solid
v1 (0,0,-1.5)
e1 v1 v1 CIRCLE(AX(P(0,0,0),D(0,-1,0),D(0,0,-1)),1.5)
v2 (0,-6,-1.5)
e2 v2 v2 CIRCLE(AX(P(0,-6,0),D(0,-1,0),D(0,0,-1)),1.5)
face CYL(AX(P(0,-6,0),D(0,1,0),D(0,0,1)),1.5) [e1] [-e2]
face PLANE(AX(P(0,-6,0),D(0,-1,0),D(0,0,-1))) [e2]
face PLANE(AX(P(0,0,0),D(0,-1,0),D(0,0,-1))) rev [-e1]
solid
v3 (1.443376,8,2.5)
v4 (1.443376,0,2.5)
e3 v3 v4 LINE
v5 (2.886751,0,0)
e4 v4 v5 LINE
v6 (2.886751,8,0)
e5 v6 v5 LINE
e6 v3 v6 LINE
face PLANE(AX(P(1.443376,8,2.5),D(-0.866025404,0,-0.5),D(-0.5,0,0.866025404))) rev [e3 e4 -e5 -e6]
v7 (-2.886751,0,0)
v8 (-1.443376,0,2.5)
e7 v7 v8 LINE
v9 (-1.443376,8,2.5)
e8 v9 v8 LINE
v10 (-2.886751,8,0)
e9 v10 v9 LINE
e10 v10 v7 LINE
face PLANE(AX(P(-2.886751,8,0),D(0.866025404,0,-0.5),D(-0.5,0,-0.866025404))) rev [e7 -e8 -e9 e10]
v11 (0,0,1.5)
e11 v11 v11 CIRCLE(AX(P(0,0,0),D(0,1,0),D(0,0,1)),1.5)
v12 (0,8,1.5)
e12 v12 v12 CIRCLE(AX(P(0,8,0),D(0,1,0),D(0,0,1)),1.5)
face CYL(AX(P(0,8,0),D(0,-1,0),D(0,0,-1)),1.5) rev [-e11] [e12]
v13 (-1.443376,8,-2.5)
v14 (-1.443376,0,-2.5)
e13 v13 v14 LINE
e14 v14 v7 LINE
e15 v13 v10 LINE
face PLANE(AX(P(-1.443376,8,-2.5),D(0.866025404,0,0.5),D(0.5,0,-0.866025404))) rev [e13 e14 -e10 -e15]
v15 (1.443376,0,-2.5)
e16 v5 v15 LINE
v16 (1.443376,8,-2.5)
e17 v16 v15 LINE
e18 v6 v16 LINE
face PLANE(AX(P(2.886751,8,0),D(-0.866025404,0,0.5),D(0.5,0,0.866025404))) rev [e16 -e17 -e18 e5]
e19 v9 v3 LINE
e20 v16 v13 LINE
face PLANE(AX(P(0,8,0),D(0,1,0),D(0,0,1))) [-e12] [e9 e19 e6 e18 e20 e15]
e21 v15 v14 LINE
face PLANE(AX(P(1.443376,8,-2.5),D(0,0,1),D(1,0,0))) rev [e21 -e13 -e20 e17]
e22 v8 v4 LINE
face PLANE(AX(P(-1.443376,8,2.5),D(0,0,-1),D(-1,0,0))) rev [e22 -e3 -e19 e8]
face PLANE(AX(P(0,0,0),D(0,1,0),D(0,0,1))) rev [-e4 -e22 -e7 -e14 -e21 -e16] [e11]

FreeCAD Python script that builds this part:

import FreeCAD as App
import Part
import Sketcher
Q = App.Units.Quantity

doc = App.newDocument("Part")
body = doc.addObject("PartDesign::Body", "Body")

# Sketch on XZ plane
sketch1 = doc.addObject("Sketcher::SketchObject", "Sketch")
body.addObject(sketch1)
sketch1.AttachmentSupport = (doc.XZ_Plane, [""])
sketch1.MapMode = "FlatFace"
sketch1.addGeometry(Part.LineSegment(App.Vector(1.4, 2.5, 0), App.Vector(2.9, 0, 0)), False)
sketch1.addGeometry(Part.LineSegment(App.Vector(2.9, 0, 0), App.Vector(1.4, -2.5, 0)), False)
sketch1.addGeometry(Part.LineSegment(App.Vector(1.4, -2.5, 0), App.Vector(-1.4, -2.5, 0)), False)
sketch1.addGeometry(Part.LineSegment(App.Vector(-1.4, -2.5, 0), App.Vector(-2.9, 0, 0)), False)
sketch1.addGeometry(Part.LineSegment(App.Vector(-2.9, 0, 0), App.Vector(-1.4, 2.5, 0)), False)
sketch1.addGeometry(Part.LineSegment(App.Vector(-1.4, 2.5, 0), App.Vector(1.4, 2.5, 0)), False)
sketch1.addGeometry(Part.Circle(App.Vector(0, 0, 0), App.Vector(0, 0, 1), 1.5), False)
sketch1.addConstraint(Sketcher.Constraint("Coincident", 0, 2, 1, 1))
sketch1.addConstraint(Sketcher.Constraint("Coincident", 1, 2, 2, 1))
sketch1.addConstraint(Sketcher.Constraint("Coincident", 2, 2, 3, 1))
sketch1.addConstraint(Sketcher.Constraint("Coincident", 3, 2, 4, 1))
sketch1.addConstraint(Sketcher.Constraint("Coincident", 4, 2, 5, 1))
sketch1.addConstraint(Sketcher.Constraint("Coincident", 5, 2, 0, 1))
sketch1.addConstraint(Sketcher.Constraint("Horizontal", 2))
sketch1.addConstraint(Sketcher.Constraint("Horizontal", 5))
sketch1.addConstraint(Sketcher.Constraint("Coincident", 6, 3, -1, 1))
sketch1.addConstraint(Sketcher.Constraint("Symmetric", 0, 2, 3, 2, -1, 1))
sketch1.addConstraint(Sketcher.Constraint("Symmetric", 1, 2, 4, 2, -1, 1))
sketch1.addConstraint(Sketcher.Constraint("PointOnObject", 0, 2, -1))
sketch1.addConstraint(Sketcher.Constraint("Parallel", 0, 3))
sketch1.addConstraint(Sketcher.Constraint("Vertical", 2, 2, 4, 2))
sketch1.addConstraint(Sketcher.Constraint("Diameter", 6, 3.0))
sketch1.addConstraint(Sketcher.Constraint("Angle", 0, Q("-60 deg")))
sketch1.addConstraint(Sketcher.Constraint("DistanceY", 2, 2, 4, 2, 5.0))
sketch1.addConstraint(Sketcher.Constraint("DistanceX", 2, 2, 2, 1, 2.886751))
pad1 = doc.addObject("PartDesign::Pad", "Pad")
body.addObject(pad1)
pad1.Profile = sketch1
pad1.Length = 8
pad1.Reversed = True
body2 = doc.addObject("PartDesign::Body", "Body001")

# Sketch on XZ plane
sketch2 = doc.addObject("Sketcher::SketchObject", "Sketch001")
body2.addObject(sketch2)
sketch2.AttachmentSupport = (doc.getObject("XZ_Plane001"), [""])
sketch2.MapMode = "FlatFace"
sketch2.addGeometry(Part.Circle(App.Vector(0, 0, 0), App.Vector(0, 0, 1), 1.5), False)
sketch2.addConstraint(Sketcher.Constraint("Coincident", 0, 3, -1, 1))
sketch2.addConstraint(Sketcher.Constraint("Diameter", 0, 3.0))
pad2 = doc.addObject("PartDesign::Pad", "Pad001")
body2.addObject(pad2)
pad2.Profile = sketch2
pad2.Length = 6

doc.recompute()
